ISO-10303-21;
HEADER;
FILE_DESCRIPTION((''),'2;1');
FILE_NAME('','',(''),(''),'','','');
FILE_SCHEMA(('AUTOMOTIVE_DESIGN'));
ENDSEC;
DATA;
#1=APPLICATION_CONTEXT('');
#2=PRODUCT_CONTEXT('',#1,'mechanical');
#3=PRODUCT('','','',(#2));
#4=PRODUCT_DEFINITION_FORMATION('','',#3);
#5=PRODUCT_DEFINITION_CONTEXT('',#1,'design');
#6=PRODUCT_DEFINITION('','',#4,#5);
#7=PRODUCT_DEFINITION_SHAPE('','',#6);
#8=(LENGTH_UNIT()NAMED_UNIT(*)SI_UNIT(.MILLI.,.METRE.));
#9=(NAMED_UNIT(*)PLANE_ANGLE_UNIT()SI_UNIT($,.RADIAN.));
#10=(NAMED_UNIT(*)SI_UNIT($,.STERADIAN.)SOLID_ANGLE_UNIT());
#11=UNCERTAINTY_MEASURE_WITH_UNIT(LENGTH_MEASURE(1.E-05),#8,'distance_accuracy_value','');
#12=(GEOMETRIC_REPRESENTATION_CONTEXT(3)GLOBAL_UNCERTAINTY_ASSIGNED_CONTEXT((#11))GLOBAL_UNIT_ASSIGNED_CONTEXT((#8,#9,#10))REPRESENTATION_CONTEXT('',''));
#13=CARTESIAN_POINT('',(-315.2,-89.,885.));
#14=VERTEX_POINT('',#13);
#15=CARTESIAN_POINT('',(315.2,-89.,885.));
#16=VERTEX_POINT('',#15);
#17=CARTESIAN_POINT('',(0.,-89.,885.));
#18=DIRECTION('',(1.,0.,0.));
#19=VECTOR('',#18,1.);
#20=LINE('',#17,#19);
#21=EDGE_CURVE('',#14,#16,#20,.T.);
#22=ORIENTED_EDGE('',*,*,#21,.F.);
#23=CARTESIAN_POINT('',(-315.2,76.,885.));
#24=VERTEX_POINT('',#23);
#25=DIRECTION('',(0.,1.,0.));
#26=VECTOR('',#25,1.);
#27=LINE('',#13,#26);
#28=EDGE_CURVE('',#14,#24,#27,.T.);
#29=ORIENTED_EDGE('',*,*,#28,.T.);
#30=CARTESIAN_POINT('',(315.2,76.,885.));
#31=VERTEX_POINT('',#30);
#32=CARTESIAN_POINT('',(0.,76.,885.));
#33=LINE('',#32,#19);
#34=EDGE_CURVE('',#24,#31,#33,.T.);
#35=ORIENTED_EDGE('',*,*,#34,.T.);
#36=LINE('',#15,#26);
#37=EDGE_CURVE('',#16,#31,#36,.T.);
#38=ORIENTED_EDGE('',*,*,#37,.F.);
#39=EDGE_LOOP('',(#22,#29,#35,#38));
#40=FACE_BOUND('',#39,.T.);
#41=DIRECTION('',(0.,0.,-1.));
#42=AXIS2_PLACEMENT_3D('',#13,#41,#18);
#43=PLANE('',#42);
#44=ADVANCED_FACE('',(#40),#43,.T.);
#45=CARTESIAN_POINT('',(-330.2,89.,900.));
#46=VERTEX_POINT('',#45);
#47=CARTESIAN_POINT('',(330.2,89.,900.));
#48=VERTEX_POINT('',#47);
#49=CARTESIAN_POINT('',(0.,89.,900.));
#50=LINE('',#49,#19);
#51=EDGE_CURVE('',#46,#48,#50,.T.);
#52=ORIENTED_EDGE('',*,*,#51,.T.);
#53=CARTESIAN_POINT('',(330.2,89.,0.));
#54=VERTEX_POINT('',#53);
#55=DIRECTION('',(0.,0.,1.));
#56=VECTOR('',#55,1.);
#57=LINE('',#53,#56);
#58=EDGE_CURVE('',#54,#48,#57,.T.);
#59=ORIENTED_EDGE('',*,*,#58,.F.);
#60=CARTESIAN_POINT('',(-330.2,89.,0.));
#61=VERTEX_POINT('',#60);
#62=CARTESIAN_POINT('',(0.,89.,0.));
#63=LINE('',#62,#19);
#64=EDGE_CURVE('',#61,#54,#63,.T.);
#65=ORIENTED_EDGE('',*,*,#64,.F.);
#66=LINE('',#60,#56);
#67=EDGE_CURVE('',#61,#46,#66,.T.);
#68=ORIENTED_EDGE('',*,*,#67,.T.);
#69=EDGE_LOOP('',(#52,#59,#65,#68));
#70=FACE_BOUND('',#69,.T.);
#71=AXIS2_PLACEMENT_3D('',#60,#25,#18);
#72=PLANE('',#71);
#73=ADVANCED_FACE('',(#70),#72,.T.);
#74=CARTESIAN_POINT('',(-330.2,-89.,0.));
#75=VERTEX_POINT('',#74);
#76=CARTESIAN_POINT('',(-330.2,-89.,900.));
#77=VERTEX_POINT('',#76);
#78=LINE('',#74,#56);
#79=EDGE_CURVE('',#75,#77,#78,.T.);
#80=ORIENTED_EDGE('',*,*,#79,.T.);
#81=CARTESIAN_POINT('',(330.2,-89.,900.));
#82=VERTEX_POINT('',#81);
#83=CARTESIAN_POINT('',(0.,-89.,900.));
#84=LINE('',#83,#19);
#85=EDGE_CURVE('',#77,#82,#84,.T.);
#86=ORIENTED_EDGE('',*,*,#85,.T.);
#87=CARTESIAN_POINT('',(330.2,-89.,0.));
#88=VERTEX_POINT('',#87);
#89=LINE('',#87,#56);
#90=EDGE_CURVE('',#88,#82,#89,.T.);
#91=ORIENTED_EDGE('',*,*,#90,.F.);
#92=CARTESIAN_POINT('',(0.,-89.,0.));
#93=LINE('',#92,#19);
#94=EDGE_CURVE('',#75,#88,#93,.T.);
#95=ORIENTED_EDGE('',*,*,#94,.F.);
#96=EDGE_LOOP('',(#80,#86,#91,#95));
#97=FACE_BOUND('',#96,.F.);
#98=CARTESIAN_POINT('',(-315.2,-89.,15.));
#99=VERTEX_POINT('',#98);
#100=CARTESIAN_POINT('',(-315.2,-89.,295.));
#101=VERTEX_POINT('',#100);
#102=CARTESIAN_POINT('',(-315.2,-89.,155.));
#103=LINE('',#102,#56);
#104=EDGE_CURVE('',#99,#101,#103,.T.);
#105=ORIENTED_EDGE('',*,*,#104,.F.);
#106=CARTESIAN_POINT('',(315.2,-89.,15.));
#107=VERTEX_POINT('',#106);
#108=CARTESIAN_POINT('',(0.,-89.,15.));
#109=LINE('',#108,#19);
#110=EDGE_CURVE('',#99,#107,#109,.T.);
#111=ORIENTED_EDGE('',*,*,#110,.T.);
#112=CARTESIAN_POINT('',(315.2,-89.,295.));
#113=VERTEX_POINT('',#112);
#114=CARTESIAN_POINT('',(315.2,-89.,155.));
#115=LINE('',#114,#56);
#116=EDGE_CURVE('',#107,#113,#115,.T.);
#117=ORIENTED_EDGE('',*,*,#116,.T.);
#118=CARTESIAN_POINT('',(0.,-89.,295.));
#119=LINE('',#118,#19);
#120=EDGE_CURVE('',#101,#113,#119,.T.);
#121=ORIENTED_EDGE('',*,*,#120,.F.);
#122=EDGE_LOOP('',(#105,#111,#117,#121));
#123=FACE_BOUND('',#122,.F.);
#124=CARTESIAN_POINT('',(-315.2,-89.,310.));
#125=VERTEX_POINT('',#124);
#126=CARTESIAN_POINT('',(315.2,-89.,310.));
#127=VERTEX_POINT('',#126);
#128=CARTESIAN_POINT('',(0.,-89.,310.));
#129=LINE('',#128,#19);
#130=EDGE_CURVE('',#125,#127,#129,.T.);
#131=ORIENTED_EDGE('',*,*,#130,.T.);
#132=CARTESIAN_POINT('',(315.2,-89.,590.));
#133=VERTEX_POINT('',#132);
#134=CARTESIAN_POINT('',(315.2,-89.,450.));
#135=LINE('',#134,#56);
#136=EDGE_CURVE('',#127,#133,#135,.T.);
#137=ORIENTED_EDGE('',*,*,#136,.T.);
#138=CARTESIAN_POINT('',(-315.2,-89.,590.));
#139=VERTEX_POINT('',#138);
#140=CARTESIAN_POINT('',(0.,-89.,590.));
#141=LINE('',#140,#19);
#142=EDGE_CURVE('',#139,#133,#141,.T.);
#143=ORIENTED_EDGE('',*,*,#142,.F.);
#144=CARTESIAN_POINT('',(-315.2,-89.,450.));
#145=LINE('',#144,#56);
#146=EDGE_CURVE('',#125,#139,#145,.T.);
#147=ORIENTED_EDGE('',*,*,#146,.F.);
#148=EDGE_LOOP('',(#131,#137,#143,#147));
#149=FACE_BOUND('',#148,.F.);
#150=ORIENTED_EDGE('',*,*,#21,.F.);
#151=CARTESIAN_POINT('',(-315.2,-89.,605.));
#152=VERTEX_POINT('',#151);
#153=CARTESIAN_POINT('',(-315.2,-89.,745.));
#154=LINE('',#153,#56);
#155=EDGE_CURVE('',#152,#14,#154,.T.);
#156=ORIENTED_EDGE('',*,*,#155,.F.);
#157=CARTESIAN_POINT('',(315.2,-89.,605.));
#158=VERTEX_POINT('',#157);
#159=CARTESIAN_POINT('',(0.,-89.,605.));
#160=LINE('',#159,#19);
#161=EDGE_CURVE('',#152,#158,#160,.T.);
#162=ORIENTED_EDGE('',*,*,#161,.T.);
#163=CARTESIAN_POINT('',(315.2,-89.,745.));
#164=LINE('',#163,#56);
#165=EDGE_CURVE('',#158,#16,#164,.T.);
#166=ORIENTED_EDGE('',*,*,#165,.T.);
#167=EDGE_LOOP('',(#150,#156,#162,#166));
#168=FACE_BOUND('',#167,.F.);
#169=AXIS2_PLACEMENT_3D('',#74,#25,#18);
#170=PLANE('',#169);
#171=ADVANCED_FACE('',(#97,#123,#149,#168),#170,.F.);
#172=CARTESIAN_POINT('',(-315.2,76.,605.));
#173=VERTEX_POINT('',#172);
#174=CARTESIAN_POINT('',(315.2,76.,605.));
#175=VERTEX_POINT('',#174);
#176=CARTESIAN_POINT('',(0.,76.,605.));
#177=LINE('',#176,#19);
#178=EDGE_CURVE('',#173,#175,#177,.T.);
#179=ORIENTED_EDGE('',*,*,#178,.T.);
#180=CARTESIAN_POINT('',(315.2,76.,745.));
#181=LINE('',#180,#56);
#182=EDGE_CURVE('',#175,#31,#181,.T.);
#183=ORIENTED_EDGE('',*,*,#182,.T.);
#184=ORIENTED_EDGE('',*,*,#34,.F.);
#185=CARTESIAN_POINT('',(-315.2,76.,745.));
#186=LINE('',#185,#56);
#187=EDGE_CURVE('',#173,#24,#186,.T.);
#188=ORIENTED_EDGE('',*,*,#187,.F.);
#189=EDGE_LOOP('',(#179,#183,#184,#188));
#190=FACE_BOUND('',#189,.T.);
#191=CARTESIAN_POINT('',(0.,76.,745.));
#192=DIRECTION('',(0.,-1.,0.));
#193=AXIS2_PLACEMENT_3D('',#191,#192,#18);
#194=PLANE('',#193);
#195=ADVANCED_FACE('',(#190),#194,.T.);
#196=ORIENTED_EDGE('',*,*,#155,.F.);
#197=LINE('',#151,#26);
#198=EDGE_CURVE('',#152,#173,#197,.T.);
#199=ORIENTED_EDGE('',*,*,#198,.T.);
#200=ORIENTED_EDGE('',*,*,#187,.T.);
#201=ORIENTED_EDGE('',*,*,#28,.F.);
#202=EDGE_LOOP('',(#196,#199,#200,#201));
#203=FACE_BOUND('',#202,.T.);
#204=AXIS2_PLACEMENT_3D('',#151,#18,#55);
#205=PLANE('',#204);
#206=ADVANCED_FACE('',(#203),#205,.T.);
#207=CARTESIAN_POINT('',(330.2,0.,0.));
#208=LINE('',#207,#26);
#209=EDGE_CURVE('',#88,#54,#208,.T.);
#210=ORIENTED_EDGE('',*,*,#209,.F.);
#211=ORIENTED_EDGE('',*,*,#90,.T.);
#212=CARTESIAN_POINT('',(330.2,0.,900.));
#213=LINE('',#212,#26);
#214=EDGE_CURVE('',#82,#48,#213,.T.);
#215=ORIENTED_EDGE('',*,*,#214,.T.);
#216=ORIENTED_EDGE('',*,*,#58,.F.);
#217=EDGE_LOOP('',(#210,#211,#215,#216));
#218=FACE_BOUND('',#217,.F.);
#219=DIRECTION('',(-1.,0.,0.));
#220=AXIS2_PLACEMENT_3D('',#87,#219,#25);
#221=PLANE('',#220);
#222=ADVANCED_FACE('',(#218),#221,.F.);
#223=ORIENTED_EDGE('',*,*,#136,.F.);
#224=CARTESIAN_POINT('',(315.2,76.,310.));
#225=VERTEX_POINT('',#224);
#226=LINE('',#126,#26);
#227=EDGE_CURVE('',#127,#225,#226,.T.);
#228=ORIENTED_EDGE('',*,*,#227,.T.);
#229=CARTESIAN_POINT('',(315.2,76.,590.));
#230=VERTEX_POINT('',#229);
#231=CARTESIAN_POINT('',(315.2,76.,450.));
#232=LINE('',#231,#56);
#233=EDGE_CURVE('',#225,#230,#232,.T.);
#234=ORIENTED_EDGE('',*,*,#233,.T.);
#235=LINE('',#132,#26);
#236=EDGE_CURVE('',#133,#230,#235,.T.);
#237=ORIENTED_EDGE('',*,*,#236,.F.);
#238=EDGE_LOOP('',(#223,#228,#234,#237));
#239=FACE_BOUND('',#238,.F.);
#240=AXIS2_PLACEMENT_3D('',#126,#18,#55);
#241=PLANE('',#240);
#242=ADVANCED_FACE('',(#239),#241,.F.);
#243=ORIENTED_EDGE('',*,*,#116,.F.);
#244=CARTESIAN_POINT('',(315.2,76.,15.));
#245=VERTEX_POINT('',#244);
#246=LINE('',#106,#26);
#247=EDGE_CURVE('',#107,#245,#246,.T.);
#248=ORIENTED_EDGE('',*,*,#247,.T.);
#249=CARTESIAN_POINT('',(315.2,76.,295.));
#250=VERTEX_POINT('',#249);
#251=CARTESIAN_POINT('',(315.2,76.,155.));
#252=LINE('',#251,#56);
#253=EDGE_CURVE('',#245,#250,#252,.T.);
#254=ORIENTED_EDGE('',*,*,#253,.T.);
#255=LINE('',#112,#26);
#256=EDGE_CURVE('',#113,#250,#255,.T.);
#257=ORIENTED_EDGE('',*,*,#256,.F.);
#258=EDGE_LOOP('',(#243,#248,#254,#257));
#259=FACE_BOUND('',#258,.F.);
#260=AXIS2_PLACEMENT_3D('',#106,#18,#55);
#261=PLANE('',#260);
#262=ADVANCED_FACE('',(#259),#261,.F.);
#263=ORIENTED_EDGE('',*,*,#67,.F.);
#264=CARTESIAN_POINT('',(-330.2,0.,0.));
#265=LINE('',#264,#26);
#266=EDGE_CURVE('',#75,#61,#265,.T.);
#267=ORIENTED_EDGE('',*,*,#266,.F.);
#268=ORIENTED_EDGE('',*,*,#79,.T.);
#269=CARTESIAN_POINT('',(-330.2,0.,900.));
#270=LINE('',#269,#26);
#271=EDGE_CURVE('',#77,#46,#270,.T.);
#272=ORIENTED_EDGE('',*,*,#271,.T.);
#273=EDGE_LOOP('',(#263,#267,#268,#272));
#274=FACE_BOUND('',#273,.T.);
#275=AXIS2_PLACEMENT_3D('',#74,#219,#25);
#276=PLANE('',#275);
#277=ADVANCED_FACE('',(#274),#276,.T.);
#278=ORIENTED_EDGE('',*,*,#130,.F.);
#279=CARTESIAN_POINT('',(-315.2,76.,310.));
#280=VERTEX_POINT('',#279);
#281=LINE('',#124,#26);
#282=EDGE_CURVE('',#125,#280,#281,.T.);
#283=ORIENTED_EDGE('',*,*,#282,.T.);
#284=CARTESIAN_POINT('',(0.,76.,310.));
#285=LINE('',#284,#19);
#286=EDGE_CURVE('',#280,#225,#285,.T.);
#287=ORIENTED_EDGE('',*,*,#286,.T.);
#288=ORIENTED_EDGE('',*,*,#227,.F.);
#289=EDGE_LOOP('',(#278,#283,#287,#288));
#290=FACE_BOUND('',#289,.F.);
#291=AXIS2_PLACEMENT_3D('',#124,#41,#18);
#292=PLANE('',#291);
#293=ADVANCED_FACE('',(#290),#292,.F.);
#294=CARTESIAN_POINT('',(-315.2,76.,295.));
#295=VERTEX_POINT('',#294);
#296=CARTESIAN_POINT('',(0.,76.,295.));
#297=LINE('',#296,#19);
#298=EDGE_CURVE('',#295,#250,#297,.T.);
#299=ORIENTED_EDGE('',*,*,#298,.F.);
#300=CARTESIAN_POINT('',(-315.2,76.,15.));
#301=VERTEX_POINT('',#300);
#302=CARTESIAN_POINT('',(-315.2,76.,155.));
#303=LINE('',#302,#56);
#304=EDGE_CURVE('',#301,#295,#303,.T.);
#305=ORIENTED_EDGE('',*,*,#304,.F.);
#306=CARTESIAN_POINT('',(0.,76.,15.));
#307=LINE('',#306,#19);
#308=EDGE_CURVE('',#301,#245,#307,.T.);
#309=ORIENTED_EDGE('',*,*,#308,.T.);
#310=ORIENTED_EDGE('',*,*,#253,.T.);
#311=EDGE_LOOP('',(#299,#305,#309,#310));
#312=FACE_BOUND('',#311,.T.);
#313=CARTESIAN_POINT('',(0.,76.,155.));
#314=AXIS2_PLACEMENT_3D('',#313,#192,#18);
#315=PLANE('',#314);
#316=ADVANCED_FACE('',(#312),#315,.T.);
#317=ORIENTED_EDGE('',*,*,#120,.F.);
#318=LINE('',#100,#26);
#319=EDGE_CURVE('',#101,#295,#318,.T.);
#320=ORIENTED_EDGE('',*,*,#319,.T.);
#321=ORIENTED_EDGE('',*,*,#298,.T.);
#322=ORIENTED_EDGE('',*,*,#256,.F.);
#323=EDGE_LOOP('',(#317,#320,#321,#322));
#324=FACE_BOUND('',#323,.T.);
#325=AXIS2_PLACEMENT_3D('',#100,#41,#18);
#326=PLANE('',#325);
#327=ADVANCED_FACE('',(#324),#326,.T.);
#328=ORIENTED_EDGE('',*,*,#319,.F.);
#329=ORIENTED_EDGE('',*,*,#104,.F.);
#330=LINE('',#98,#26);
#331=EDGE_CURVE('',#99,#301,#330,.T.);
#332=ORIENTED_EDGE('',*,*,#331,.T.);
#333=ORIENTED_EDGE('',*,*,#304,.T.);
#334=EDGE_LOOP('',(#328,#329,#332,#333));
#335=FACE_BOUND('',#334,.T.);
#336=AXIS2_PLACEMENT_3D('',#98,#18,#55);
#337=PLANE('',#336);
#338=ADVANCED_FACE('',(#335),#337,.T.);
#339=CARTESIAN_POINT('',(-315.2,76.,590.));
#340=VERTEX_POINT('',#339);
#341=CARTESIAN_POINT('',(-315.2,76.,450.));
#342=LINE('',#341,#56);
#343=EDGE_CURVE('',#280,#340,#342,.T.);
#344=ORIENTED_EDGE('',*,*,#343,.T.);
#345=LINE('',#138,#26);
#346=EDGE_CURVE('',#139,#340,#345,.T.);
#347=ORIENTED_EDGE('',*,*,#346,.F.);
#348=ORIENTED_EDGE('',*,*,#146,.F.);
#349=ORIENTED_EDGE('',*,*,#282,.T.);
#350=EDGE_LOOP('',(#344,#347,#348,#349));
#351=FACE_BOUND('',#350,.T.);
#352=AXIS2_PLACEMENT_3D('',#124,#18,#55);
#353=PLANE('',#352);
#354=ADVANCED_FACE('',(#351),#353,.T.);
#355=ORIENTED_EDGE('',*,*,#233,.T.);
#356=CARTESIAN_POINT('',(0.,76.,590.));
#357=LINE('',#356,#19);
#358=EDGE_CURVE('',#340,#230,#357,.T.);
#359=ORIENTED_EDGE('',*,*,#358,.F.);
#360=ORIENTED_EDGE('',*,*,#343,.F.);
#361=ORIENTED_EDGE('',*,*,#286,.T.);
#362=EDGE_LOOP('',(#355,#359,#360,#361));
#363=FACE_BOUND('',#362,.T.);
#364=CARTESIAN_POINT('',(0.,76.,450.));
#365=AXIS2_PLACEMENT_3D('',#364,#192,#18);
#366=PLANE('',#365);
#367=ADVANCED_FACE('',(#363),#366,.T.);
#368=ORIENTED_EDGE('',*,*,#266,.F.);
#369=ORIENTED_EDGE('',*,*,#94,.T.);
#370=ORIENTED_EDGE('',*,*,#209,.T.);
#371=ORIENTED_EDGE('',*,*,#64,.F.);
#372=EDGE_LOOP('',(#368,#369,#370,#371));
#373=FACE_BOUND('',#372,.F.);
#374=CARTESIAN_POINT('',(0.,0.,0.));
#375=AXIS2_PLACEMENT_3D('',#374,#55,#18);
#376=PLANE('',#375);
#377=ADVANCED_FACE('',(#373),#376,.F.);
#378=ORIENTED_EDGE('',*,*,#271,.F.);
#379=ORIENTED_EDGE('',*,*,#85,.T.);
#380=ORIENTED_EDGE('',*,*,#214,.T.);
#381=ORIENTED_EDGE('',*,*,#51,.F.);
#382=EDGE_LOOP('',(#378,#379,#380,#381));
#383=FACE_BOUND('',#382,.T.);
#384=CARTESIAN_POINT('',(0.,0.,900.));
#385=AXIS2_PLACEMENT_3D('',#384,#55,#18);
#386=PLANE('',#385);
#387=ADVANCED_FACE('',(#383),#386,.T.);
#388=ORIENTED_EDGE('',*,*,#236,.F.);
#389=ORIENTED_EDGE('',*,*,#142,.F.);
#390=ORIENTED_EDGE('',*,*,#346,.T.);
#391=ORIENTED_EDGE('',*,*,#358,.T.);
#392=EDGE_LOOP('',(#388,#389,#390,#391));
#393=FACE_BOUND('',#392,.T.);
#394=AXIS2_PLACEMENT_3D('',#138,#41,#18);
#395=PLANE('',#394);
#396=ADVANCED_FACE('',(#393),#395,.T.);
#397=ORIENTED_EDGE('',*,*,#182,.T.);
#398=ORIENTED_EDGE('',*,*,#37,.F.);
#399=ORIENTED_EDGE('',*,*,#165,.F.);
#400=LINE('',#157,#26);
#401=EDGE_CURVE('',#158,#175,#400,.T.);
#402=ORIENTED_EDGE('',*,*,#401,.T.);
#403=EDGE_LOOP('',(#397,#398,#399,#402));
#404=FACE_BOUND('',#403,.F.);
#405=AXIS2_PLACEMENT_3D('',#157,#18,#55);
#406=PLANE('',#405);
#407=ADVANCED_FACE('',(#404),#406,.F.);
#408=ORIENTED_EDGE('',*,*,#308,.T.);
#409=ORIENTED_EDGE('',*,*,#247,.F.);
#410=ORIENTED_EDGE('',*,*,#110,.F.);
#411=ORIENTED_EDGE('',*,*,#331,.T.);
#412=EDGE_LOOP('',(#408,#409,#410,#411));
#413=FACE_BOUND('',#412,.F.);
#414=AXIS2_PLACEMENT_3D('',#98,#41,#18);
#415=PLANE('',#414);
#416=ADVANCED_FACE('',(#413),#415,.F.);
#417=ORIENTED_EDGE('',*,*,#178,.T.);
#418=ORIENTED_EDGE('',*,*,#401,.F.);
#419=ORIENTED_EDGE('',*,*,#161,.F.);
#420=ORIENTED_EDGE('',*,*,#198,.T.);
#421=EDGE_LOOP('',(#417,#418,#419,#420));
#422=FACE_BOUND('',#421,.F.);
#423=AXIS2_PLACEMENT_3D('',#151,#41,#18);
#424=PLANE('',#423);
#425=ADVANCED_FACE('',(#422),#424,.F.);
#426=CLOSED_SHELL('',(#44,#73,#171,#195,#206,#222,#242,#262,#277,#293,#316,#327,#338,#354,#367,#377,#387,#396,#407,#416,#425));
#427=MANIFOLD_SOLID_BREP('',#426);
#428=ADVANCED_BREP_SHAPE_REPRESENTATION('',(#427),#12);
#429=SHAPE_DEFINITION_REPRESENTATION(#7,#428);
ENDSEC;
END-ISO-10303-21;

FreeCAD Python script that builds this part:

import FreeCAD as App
import Part
import Sketcher
Q = App.Units.Quantity


def add_polygon(sketch, points):
    """Adds a closed chain of lines whose ends are joined by coincident constraints."""
    first, n = sketch.GeometryCount, len(points)
    for a, b in zip(points, points[1:] + points[:1]):
        sketch.addGeometry(Part.LineSegment(App.Vector(*a, 0), App.Vector(*b, 0)), False)
    for i in range(n):
        sketch.addConstraint(Sketcher.Constraint("Coincident", first + i, 2, first + (i + 1) % n, 1))

doc = App.newDocument("Part")
body = doc.addObject("PartDesign::Body", "Body")

# Sketch on XY plane
sketch1 = body.newObject("Sketcher::SketchObject", "Sketch")
sketch1.AttachmentSupport = (doc.getObject("XY_Plane"), [""])
sketch1.MapMode = "FlatFace"
add_polygon(sketch1, [(-330, 89), (-330, -89), (330, -89), (330, 89)])  # lines 0-3
sketch1.addConstraint([
    Sketcher.Constraint("Vertical", 0),
    Sketcher.Constraint("Horizontal", 1),
    Sketcher.Constraint("Vertical", 2),
    Sketcher.Constraint("Horizontal", 3),
    Sketcher.Constraint("Symmetric", 0, 2, 2, 2, -1, 1),
    Sketcher.Constraint("DistanceY", 0, 2, 0, 1, Q("178 mm")),
    Sketcher.Constraint("DistanceX", 1, 1, 1, 2, Q("660.4 mm")),
])
pad1 = body.newObject("PartDesign::Pad", "Pad")
pad1.Profile = sketch1
pad1.Length = 900

# Sketch on XZ plane
sketch2 = body.newObject("Sketcher::SketchObject", "Sketch001")
sketch2.AttachmentSupport = (doc.getObject("XZ_Plane"), [""])
sketch2.MapMode = "FlatFace"
sketch2.AttachmentOffset = App.Placement(App.Vector(0, 0, 89), App.Rotation())
add_polygon(sketch2, [(-315, 885), (-315, 605), (315, 605), (315, 885)])  # lines 0-3
add_polygon(sketch2, [(-315, 590), (-315, 310), (315, 310), (315, 590)])  # lines 4-7
add_polygon(sketch2, [(-315, 295), (-315, 15), (315, 15), (315, 295)])  # lines 8-11
sketch2.addConstraint([
    Sketcher.Constraint("Vertical", 0),
    Sketcher.Constraint("Horizontal", 1),
    Sketcher.Constraint("Vertical", 2),
    Sketcher.Constraint("Horizontal", 3),
    Sketcher.Constraint("Vertical", 4),
    Sketcher.Constraint("Horizontal", 5),
    Sketcher.Constraint("Vertical", 6),
    Sketcher.Constraint("Horizontal", 7),
    Sketcher.Constraint("Vertical", 8),
    Sketcher.Constraint("Horizontal", 9),
    Sketcher.Constraint("Vertical", 10),
    Sketcher.Constraint("Horizontal", 11),
    Sketcher.Constraint("Vertical", 3, 2, 4, 2),
    Sketcher.Constraint("Vertical", 2, 2, 5, 2),
    Sketcher.Constraint("Vertical", 7, 2, 8, 2),
    Sketcher.Constraint("Vertical", 6, 2, 9, 2),
    Sketcher.Constraint("Equal", 2, 4),
    Sketcher.Constraint("Equal", 6, 8),
    Sketcher.Constraint("DistanceY", 0, 2, 0, 1, Q("280 mm")),
    Sketcher.Constraint("DistanceX", 1, 1, 1, 2, Q("630.4 mm")),
    Sketcher.Constraint("DistanceY", -1, 1, 0, 2, Q("605 mm")),
    Sketcher.Constraint("DistanceY", -1, 1, 4, 2, Q("310 mm")),
    Sketcher.Constraint("DistanceY", -1, 1, 8, 2, Q("15 mm")),
    Sketcher.Constraint("DistanceX", 0, 2, -1, 1, Q("315.2 mm")),
])
pocket1 = body.newObject("PartDesign::Pocket", "Pocket")
pocket1.Profile = sketch2
pocket1.Length = 165

doc.recompute()
